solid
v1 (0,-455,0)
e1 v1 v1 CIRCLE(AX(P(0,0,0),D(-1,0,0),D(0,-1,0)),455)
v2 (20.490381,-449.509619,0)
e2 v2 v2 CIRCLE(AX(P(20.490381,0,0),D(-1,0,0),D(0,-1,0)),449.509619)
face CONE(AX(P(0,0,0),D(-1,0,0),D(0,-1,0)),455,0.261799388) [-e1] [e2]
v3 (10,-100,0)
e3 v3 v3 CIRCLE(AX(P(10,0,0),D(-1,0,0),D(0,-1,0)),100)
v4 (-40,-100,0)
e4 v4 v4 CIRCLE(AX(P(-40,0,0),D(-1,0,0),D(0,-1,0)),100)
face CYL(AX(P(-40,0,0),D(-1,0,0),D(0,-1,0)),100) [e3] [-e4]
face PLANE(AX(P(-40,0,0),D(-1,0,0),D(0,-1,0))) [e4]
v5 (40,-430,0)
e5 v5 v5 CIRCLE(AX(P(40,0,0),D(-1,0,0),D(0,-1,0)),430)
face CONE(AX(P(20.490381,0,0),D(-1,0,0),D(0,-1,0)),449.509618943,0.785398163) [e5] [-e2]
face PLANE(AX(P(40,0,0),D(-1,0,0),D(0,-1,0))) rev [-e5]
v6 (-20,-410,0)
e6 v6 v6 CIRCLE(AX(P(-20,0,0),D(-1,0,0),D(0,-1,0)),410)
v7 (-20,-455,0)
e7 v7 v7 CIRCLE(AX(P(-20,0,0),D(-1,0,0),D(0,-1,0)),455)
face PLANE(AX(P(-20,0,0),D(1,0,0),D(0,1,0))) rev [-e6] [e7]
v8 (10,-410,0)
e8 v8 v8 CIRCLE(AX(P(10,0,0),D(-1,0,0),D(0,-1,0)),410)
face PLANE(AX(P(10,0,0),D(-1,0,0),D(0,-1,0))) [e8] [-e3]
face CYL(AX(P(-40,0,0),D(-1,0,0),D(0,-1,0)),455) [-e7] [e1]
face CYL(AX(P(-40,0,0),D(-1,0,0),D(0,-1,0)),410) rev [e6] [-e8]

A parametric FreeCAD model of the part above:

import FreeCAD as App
import Part
import Sketcher

V = App.Vector
Q = App.Units.Quantity

doc = App.newDocument("Part")
body = doc.addObject("PartDesign::Body", "Body")

sketch1 = body.newObject("Sketcher::SketchObject", "Sketch")
sketch1.AttachmentSupport = (doc.getObject("XY_Plane"), [""])
sketch1.MapMode = "FlatFace"
sketch1.addGeometry([
    Part.LineSegment(V(-40, 100, 0), V(-40, 0, 0)),
    Part.LineSegment(V(-40, 0, 0), V(40, 0, 0)),
    Part.LineSegment(V(40, 0, 0), V(40, 430, 0)),
    Part.LineSegment(V(40, 430, 0), V(20.490381, 449.509619, 0)),
    Part.LineSegment(V(20.490381, 449.509619, 0), V(0, 455, 0)),
    Part.LineSegment(V(0, 455, 0), V(-20, 455, 0)),
    Part.LineSegment(V(-20, 455, 0), V(-20, 410, 0)),
    Part.LineSegment(V(-20, 410, 0), V(10, 410, 0)),
    Part.LineSegment(V(10, 410, 0), V(10, 100, 0)),
    Part.LineSegment(V(10, 100, 0), V(-40, 100, 0)),
], False)
sketch1.addConstraint([
    Sketcher.Constraint("Coincident", 0, 2, 1, 1),
    Sketcher.Constraint("Coincident", 1, 2, 2, 1),
    Sketcher.Constraint("Coincident", 2, 2, 3, 1),
    Sketcher.Constraint("Coincident", 3, 2, 4, 1),
    Sketcher.Constraint("Coincident", 4, 2, 5, 1),
    Sketcher.Constraint("Coincident", 5, 2, 6, 1),
    Sketcher.Constraint("Coincident", 6, 2, 7, 1),
    Sketcher.Constraint("Coincident", 7, 2, 8, 1),
    Sketcher.Constraint("Coincident", 8, 2, 9, 1),
    Sketcher.Constraint("Coincident", 9, 2, 0, 1),
    Sketcher.Constraint("Vertical", 0),
    Sketcher.Constraint("Horizontal", 1),
    Sketcher.Constraint("Vertical", 2),
    Sketcher.Constraint("Horizontal", 5),
    Sketcher.Constraint("Vertical", 6),
    Sketcher.Constraint("Horizontal", 7),
    Sketcher.Constraint("Vertical", 8),
    Sketcher.Constraint("Horizontal", 9),
    Sketcher.Constraint("Symmetric", 0, 2, 1, 2, -1, 1),
    Sketcher.Constraint("PointOnObject", 4, 2, -2),
    Sketcher.Constraint("DistanceX", 1, 1, 1, 2, 80.0),
    Sketcher.Constraint("DistanceX", 5, 2, 5, 1, 20.0),
    Sketcher.Constraint("DistanceX", 7, 1, 7, 2, 30.0),
    Sketcher.Constraint("DistanceY", 0, 2, 0, 1, 100.0),
    Sketcher.Constraint("DistanceY", 2, 1, 2, 2, 430.0),
    Sketcher.Constraint("DistanceY", 6, 2, 6, 1, 45.0),
    Sketcher.Constraint("DistanceY", 8, 2, 8, 1, 310.0),
    Sketcher.Constraint("Angle", 3, Q("135 deg")),
    Sketcher.Constraint("Angle", 4, Q("165 deg")),
])
revolution = body.newObject("PartDesign::Revolution", "Revolution")
revolution.Profile = sketch1
revolution.ReferenceAxis = (sketch1, ["H_Axis"])
revolution.Angle = 360

doc.recompute()
